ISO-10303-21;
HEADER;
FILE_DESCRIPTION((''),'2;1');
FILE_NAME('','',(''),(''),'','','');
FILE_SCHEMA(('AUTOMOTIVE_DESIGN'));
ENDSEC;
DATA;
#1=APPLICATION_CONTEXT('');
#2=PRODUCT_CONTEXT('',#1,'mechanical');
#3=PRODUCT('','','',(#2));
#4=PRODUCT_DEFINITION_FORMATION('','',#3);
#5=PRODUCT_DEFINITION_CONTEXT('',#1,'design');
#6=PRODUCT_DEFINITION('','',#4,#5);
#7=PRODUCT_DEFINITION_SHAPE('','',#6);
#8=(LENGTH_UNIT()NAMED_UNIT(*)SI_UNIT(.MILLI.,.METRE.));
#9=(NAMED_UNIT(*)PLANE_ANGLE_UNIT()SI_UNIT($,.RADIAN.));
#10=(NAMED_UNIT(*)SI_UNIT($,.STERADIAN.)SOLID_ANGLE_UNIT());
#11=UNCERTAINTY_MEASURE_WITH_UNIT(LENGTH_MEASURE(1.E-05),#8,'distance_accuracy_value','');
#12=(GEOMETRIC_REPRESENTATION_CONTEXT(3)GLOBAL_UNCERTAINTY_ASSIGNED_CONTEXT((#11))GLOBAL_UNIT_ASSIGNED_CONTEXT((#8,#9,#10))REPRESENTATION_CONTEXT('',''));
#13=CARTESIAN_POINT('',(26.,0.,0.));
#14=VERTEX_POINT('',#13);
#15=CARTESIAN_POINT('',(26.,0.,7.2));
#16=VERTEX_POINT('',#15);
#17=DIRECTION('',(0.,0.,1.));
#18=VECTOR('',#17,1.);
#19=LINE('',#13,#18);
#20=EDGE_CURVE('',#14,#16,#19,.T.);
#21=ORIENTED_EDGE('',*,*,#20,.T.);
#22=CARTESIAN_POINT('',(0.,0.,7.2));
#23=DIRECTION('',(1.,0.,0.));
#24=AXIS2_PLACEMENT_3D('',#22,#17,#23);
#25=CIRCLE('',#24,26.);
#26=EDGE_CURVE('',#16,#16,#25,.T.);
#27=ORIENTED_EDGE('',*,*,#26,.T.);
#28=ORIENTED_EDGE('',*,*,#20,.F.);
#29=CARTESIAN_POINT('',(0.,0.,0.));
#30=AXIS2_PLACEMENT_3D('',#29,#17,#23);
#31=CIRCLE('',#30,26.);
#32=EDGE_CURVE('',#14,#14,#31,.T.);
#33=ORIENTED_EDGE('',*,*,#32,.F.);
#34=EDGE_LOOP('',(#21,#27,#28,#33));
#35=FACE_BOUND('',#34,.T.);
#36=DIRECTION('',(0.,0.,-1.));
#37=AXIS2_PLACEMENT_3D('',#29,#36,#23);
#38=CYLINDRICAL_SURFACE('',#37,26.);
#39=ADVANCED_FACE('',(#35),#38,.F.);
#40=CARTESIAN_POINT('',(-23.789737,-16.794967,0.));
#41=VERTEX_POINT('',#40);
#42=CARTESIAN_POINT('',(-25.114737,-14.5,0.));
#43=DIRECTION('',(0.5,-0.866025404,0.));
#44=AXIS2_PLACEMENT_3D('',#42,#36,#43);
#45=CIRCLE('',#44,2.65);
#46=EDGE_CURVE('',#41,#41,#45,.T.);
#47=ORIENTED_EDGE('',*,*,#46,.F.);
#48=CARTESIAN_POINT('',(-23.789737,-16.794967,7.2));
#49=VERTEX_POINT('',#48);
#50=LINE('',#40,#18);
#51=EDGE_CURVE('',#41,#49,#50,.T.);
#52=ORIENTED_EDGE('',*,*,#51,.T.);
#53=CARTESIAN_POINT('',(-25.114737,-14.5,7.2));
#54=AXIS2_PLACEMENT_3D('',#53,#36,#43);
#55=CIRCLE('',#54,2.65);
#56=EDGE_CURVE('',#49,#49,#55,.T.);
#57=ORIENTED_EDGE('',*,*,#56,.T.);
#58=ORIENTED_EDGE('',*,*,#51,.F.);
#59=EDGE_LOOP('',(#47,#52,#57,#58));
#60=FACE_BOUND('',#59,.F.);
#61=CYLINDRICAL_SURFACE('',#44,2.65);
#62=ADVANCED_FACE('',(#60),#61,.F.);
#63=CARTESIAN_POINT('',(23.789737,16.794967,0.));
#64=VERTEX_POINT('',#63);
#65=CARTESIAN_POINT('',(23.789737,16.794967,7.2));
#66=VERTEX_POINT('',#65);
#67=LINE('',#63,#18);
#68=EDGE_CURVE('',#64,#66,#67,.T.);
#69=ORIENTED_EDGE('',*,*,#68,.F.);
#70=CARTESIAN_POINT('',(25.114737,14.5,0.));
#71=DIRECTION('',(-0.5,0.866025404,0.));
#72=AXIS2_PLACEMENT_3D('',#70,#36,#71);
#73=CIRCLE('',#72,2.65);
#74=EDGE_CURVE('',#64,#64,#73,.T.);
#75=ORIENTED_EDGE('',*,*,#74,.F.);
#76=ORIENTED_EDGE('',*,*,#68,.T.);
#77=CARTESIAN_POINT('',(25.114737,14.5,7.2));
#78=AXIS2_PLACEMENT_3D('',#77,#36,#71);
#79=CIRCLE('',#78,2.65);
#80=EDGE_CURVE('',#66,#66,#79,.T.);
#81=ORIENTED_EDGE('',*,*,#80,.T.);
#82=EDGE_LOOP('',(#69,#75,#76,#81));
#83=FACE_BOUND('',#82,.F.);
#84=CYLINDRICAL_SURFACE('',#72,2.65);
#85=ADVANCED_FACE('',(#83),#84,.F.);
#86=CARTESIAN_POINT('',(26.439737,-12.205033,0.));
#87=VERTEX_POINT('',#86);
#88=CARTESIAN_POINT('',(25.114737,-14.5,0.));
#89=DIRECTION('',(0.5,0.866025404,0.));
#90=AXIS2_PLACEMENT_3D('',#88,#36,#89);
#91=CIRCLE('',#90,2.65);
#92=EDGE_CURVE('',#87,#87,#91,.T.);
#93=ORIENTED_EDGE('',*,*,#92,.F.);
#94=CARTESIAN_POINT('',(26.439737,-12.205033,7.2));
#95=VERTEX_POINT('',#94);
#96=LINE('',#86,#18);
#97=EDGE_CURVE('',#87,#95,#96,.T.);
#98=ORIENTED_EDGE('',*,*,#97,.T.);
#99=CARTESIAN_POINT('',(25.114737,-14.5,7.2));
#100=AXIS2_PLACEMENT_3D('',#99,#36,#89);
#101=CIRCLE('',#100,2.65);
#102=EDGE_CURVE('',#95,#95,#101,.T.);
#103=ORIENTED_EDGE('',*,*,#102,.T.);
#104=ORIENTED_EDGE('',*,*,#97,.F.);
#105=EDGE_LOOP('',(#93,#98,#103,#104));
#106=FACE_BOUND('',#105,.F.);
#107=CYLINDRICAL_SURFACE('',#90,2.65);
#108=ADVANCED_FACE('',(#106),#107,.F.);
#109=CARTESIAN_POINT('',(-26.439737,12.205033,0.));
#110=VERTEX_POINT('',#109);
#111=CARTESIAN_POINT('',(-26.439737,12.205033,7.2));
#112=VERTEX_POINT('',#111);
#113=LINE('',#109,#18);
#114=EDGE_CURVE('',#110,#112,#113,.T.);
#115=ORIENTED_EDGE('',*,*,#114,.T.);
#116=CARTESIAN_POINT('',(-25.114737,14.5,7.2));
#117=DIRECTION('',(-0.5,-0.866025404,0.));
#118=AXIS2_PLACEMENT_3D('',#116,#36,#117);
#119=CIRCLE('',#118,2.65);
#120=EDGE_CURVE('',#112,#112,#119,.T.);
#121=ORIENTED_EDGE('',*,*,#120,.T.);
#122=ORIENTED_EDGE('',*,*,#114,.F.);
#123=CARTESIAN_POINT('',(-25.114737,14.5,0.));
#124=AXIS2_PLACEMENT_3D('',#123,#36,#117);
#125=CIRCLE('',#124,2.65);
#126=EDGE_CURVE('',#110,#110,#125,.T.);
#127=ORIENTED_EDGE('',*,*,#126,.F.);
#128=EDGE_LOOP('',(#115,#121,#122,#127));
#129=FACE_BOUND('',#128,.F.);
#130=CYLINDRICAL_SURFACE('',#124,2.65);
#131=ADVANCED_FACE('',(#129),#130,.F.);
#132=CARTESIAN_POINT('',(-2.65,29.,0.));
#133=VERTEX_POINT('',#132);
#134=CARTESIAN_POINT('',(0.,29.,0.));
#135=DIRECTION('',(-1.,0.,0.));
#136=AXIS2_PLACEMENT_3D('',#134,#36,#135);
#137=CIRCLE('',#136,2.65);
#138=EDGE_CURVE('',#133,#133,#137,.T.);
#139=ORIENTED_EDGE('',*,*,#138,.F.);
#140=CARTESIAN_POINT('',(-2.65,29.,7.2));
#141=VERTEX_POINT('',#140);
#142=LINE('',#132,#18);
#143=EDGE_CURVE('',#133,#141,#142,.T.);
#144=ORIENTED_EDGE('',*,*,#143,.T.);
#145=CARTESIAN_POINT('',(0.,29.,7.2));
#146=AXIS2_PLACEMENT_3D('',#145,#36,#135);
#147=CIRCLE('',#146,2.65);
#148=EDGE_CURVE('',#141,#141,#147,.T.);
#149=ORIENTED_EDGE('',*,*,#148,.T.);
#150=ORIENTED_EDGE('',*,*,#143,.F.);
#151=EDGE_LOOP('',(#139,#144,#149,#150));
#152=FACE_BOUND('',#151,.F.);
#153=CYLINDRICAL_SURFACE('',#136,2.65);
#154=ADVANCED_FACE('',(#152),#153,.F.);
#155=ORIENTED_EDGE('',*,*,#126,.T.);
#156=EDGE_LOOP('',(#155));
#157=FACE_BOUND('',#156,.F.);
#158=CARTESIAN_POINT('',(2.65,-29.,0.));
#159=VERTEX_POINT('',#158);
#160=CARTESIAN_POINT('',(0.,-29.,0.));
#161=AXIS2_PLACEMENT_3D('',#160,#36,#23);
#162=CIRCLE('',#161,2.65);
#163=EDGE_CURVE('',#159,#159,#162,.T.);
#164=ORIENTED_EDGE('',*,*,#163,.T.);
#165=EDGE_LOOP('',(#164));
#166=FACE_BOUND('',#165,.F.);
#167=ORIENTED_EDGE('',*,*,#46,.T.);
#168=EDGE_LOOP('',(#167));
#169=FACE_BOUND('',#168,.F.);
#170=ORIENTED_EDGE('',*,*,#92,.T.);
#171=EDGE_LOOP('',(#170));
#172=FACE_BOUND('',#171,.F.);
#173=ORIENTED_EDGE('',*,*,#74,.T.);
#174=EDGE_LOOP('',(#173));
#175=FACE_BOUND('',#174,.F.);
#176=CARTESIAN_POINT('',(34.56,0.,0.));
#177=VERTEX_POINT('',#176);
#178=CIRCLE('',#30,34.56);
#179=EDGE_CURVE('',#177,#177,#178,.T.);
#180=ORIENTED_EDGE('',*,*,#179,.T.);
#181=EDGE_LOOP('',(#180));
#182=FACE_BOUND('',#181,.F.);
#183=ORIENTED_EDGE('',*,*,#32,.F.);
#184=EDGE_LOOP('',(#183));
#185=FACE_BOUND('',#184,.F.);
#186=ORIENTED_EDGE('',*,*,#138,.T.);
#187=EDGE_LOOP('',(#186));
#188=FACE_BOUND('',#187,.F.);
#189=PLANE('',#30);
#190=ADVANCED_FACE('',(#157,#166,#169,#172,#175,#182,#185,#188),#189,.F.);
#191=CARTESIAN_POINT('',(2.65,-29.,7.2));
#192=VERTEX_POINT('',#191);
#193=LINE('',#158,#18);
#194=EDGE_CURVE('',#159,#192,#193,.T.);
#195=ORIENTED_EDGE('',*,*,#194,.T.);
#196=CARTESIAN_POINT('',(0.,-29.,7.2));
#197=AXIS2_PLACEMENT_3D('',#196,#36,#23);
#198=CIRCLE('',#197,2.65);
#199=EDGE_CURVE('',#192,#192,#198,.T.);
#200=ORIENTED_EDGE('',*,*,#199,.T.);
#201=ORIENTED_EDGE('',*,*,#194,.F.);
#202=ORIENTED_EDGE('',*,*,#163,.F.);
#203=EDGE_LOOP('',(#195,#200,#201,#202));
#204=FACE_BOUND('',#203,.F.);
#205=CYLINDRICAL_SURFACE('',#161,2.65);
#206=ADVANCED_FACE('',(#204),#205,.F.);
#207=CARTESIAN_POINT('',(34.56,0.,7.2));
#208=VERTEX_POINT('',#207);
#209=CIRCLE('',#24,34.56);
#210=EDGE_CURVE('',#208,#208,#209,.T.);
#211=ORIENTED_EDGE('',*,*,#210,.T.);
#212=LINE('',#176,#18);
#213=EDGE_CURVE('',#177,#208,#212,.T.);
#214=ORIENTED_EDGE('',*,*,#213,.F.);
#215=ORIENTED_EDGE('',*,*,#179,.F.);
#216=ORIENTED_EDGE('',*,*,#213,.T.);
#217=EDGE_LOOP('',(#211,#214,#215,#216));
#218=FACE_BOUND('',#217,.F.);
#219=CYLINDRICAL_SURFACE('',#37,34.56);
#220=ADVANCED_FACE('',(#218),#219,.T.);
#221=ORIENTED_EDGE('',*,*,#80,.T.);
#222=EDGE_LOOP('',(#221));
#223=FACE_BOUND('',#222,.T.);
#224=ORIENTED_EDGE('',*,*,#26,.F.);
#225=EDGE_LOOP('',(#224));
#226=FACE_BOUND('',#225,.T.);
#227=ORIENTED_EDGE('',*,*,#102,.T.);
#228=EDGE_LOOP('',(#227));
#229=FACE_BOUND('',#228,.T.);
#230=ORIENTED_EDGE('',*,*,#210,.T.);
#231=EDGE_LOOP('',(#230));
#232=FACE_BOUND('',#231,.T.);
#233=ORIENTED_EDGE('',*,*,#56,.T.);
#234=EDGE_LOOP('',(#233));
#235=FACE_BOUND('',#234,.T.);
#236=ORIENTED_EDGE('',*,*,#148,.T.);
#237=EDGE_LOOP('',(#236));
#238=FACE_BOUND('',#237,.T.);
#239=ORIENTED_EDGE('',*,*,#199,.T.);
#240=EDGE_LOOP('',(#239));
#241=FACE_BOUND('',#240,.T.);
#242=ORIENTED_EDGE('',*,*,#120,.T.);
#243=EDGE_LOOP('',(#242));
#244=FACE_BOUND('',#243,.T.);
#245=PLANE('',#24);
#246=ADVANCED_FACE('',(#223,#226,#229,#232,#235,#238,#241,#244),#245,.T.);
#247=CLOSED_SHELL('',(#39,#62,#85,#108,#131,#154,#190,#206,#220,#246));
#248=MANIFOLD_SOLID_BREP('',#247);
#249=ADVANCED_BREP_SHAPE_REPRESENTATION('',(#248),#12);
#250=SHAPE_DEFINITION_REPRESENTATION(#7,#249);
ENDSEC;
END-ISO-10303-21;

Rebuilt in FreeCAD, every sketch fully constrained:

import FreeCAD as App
import Part
import Sketcher
Q = App.Units.Quantity

doc = App.newDocument("Part")
body = doc.addObject("PartDesign::Body", "Body")

sketch1 = doc.addObject("Sketcher::SketchObject", "Sketch")
body.addObject(sketch1)
sketch1.AttachmentSupport = (doc.XY_Plane, [""])
sketch1.MapMode = "FlatFace"
sketch1.addGeometry([
    Part.Circle(App.Vector(0, 0, 0), App.Vector(0, 0, 1), 34.56),
    Part.Circle(App.Vector(0, 0, 0), App.Vector(0, 0, 1), 26),
], False)
sketch1.addConstraint([
    Sketcher.Constraint("Coincident", 0, 3, -1, 1),
    Sketcher.Constraint("Coincident", 1, 3, -1, 1),
    Sketcher.Constraint("Diameter", 1, Q("52 mm")),
    Sketcher.Constraint("Diameter", 0, Q("69.12 mm")),
])
pad1 = doc.addObject("PartDesign::Pad", "Pad")
body.addObject(pad1)
pad1.Profile = sketch1
pad1.Length = 7.2

sketch2 = doc.addObject("Sketcher::SketchObject", "Sketch001")
body.addObject(sketch2)
sketch2.AttachmentSupport = (doc.XY_Plane, [""])
sketch2.MapMode = "FlatFace"
sketch2.addGeometry(Part.Circle(App.Vector(0, 29, 0), App.Vector(0, 0, 1), 2.65), False)
sketch2.addConstraint([
    Sketcher.Constraint("PointOnObject", 0, 3, -2),
    Sketcher.Constraint("Diameter", 0, Q("5.3 mm")),
    Sketcher.Constraint("DistanceY", -1, 1, 0, 3, Q("29 mm")),
])
pocket1 = doc.addObject("PartDesign::Pocket", "Pocket")
body.addObject(pocket1)
pocket1.Profile = sketch2
pocket1.Length = 493.3012
pocket1.Midplane = True
doc.recompute()

polarpattern = doc.addObject("PartDesign::PolarPattern", "PolarPattern")
body.addObject(polarpattern)
polarpattern.Originals = [pocket1]
polarpattern.Axis = (doc.Z_Axis, [""])
polarpattern.Angle = 360
polarpattern.Occurrences = 6
body.Tip = polarpattern

doc.recompute()
